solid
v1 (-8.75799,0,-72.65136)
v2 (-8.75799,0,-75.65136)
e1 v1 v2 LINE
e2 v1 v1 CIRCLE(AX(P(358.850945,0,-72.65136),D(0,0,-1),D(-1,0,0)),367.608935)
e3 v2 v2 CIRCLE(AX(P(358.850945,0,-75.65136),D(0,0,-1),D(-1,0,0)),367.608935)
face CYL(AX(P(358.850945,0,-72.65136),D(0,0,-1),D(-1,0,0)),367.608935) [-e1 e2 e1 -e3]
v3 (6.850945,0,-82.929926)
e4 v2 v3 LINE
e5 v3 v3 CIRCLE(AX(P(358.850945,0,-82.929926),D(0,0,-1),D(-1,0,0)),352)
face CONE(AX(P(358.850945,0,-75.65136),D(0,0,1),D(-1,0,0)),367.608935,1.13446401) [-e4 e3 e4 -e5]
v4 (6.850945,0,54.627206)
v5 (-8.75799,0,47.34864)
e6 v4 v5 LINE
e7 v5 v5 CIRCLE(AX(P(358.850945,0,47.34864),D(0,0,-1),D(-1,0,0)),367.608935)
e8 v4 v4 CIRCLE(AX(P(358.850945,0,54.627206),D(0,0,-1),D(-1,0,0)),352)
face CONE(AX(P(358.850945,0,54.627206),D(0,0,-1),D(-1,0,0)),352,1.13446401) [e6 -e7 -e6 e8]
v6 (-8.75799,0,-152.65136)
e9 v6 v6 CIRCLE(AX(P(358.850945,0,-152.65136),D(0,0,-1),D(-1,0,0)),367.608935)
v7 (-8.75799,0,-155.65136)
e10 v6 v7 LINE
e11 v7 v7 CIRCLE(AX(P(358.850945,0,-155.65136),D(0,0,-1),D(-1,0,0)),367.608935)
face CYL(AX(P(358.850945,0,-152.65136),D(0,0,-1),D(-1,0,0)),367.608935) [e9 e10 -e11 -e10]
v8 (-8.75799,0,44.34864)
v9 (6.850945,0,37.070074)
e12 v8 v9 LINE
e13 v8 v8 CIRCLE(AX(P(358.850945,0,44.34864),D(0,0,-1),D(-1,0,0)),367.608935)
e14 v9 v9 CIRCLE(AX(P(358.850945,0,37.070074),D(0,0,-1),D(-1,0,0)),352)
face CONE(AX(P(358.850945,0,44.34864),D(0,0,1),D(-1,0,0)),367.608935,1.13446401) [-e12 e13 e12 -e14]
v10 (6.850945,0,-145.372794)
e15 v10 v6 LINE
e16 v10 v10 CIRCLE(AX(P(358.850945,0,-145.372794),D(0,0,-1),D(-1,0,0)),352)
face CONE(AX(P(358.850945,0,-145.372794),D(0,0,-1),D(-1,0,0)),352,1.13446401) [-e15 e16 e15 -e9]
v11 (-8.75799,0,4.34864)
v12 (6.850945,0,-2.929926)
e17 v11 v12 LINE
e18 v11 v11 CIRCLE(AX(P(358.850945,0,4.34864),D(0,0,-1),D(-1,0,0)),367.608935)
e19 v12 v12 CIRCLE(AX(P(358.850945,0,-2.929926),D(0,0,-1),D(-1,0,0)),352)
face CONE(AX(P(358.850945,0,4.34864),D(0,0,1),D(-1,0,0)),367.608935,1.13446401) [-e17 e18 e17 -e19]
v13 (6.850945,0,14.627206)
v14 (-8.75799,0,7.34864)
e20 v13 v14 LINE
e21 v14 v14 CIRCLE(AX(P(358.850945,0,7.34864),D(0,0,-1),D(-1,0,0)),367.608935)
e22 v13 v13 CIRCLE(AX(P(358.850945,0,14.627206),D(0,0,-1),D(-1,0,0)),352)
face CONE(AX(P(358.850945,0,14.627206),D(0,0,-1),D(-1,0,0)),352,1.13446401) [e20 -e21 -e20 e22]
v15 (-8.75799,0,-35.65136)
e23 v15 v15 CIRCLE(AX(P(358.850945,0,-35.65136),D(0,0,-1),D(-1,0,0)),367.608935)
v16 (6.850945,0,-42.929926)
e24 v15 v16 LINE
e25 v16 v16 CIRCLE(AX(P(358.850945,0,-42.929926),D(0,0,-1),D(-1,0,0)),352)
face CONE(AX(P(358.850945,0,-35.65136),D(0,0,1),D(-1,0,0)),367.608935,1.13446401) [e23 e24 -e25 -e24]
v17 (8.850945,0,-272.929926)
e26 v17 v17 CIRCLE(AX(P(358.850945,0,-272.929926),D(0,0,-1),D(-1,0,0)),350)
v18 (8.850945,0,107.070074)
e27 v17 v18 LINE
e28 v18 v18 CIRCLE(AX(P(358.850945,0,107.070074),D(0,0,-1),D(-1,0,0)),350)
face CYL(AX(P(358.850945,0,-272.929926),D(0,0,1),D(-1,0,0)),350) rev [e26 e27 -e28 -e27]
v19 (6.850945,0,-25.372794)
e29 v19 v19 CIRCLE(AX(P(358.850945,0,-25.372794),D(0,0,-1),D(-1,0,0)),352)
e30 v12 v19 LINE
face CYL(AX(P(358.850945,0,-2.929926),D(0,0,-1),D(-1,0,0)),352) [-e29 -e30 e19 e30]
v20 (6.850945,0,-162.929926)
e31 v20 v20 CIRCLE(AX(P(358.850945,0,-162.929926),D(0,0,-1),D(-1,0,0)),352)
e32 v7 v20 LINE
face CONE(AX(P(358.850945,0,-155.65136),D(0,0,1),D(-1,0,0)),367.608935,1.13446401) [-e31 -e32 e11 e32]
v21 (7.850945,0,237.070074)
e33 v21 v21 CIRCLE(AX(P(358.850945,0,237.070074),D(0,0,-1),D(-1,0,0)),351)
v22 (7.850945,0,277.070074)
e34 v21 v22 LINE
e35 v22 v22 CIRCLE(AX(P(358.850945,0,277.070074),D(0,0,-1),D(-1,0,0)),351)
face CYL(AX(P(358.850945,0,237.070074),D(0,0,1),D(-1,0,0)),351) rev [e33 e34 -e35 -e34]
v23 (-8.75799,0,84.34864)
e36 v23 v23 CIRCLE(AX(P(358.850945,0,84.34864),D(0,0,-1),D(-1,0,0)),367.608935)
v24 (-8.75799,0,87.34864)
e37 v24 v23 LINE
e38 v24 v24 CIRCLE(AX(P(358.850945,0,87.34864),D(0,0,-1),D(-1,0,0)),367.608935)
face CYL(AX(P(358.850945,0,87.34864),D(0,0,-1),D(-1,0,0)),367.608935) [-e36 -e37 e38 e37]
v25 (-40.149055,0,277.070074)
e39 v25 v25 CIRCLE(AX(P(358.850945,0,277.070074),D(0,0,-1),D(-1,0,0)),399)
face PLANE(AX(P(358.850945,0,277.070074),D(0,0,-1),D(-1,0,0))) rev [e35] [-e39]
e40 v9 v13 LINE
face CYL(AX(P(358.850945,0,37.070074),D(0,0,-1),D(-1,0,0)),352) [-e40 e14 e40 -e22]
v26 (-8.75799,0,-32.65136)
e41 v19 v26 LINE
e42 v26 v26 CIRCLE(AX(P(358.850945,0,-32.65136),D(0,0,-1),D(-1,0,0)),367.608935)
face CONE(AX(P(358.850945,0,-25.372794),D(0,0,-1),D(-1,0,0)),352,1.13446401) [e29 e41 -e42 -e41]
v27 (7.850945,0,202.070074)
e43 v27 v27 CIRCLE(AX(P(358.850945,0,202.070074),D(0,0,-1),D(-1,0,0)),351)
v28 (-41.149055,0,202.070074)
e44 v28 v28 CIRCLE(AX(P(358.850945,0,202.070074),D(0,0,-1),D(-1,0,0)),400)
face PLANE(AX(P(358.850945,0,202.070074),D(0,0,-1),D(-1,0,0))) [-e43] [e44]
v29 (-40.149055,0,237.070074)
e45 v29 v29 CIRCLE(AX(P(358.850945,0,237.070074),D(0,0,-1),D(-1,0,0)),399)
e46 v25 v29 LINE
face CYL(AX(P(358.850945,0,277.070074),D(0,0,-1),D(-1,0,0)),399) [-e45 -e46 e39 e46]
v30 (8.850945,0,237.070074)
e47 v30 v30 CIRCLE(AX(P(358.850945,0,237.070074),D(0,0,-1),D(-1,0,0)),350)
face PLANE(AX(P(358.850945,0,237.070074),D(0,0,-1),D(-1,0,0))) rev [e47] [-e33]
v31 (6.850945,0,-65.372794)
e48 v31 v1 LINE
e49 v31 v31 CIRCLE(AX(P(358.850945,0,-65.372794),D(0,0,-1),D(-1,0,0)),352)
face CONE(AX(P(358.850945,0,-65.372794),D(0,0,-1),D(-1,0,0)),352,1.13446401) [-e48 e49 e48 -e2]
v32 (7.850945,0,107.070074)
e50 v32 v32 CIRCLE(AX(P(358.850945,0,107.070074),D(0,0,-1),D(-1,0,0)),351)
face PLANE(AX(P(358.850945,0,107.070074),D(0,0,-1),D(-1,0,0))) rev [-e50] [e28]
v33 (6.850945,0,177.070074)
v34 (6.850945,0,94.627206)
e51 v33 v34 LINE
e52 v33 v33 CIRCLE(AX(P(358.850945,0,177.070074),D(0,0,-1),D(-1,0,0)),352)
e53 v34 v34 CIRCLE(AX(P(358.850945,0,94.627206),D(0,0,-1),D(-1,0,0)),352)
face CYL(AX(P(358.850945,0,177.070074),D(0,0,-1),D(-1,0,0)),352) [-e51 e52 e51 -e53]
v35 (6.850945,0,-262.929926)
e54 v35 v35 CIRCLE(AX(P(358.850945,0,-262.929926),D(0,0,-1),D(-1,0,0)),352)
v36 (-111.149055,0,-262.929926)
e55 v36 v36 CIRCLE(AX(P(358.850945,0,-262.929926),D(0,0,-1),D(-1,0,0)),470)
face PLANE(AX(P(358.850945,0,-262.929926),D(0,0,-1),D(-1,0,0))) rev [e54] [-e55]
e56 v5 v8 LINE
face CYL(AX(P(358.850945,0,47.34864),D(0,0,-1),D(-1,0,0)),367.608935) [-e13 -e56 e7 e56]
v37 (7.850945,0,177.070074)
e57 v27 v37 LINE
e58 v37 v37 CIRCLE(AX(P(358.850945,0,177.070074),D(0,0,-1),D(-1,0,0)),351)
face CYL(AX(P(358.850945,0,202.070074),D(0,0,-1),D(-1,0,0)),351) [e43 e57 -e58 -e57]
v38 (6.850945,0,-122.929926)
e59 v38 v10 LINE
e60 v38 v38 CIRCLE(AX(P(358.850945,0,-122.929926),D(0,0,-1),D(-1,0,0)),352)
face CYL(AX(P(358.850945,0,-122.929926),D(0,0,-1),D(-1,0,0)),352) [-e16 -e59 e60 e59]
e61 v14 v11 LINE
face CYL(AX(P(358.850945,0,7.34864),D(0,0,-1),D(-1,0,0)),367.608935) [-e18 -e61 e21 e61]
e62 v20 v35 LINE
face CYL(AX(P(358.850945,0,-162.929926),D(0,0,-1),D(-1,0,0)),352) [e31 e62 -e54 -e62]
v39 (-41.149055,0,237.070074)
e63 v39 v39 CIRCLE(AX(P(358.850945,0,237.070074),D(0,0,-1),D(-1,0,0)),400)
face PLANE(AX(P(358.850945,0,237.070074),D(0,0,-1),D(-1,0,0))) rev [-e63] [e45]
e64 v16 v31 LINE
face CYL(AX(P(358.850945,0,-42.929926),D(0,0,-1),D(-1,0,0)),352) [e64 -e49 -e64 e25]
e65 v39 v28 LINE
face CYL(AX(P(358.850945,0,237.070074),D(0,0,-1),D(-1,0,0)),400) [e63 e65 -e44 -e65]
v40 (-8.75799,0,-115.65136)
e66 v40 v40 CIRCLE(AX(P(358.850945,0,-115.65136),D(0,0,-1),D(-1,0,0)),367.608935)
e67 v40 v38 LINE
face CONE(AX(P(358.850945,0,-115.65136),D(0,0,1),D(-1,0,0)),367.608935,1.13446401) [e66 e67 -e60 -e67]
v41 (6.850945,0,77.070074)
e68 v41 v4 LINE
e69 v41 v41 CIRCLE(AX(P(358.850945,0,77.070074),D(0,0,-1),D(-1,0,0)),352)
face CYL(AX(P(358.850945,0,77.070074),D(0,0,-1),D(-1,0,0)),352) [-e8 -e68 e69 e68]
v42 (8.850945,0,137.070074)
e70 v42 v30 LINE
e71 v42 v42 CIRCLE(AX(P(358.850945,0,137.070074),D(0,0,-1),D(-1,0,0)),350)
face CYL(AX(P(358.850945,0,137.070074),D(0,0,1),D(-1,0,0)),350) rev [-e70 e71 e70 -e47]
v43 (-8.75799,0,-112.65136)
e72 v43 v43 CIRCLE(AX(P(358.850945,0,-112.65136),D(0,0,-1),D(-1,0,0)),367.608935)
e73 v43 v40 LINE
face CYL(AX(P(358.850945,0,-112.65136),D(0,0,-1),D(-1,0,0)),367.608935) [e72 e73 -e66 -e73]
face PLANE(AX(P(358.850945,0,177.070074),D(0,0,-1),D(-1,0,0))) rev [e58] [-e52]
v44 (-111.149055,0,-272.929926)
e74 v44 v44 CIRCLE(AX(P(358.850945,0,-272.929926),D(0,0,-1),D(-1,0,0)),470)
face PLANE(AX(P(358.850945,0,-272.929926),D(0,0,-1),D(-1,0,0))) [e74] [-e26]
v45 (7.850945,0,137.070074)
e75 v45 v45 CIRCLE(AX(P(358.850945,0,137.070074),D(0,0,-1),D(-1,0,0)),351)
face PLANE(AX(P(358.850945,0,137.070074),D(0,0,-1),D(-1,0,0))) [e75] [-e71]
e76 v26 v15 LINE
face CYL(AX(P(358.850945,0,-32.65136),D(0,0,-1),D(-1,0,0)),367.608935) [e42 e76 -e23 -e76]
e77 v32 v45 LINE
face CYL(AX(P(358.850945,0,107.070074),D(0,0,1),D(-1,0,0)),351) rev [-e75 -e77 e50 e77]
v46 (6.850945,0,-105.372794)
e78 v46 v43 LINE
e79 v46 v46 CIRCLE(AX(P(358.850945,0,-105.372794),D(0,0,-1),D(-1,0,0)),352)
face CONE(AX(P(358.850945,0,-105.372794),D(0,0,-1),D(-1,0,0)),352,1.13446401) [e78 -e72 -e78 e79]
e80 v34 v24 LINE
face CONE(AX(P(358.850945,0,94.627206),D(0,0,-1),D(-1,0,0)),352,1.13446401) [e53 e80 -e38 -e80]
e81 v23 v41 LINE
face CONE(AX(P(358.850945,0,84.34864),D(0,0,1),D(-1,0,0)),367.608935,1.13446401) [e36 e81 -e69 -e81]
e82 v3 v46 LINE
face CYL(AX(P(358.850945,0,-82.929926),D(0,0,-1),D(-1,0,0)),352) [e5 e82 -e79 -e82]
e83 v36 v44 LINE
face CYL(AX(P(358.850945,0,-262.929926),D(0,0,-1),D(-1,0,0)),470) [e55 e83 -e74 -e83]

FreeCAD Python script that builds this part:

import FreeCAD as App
import Part
import Sketcher

V = App.Vector
Q = App.Units.Quantity


def add_polygon(sketch, points):
    """Adds a closed chain of lines whose ends are joined by coincident constraints."""
    first, n = sketch.GeometryCount, len(points)
    for a, b in zip(points, points[1:] + points[:1]):
        sketch.addGeometry(Part.LineSegment(App.Vector(*a, 0), App.Vector(*b, 0)), False)
    for i in range(n):
        sketch.addConstraint(Sketcher.Constraint("Coincident", first + i, 2, first + (i + 1) % n, 1))

doc = App.newDocument("Part")
body = doc.addObject("PartDesign::Body", "Body")

# Sketch on XZ plane
sketch1 = body.newObject("Sketcher::SketchObject", "Sketch")
sketch1.AttachmentSupport = (doc.getObject("XZ_Plane"), [""])
sketch1.MapMode = "FlatFace"
add_polygon(sketch1, [(-111.149055, -272.929926), (8.850945, -272.929926), (8.850945, 107.070074), (7.850945, 107.070074), (7.850945, 137.070074), (8.850945, 137.070074), (8.850945, 237.070074), (7.850945, 237.070074), (7.850945, 277.070074), (-40.149055, 277.070074), (-40.149055, 237.070074), (-41.149055, 237.070074), (-41.149055, 202.070074), (7.850945, 202.070074), (7.850945, 177.070074), (6.850945, 177.070074), (6.850945, 94.627206), (-8.75799, 87.34864), (-8.75799, 84.34864), (6.850945, 77.070074), (6.850945, 54.627206), (-8.75799, 47.34864), (-8.75799, 44.34864), (6.850945, 37.070074), (6.850945, 14.627206), (-8.75799, 7.34864), (-8.75799, 4.34864), (6.850945, -2.929926), (6.850945, -25.372794), (-8.75799, -32.65136), (-8.75799, -35.65136), (6.850945, -42.929926), (6.850945, -65.372794), (-8.75799, -72.65136), (-8.75799, -75.65136), (6.850945, -82.929926), (6.850945, -105.372794), (-8.75799, -112.65136), (-8.75799, -115.65136), (6.850945, -122.929926), (6.850945, -145.372794), (-8.75799, -152.65136), (-8.75799, -155.65136), (6.850945, -162.929926), (6.850945, -262.929926), (-111.149055, -262.929926)])  # lines 0-45
sketch1.addGeometry(Part.LineSegment(V(358.850945, 277.070074, 0), V(358.850945, -272.929926, 0)), True)  # axis
sketch1.addConstraint([
    Sketcher.Constraint("Horizontal", 0),
    Sketcher.Constraint("Vertical", 1),
    Sketcher.Constraint("Horizontal", 2),
    Sketcher.Constraint("Vertical", 3),
    Sketcher.Constraint("Horizontal", 4),
    Sketcher.Constraint("Vertical", 5),
    Sketcher.Constraint("Horizontal", 6),
    Sketcher.Constraint("Vertical", 7),
    Sketcher.Constraint("Horizontal", 8),
    Sketcher.Constraint("Vertical", 9),
    Sketcher.Constraint("Horizontal", 10),
    Sketcher.Constraint("Vertical", 11),
    Sketcher.Constraint("Horizontal", 12),
    Sketcher.Constraint("Vertical", 13),
    Sketcher.Constraint("Horizontal", 14),
    Sketcher.Constraint("Vertical", 15),
    Sketcher.Constraint("Vertical", 17),
    Sketcher.Constraint("Vertical", 19),
    Sketcher.Constraint("Vertical", 21),
    Sketcher.Constraint("Vertical", 23),
    Sketcher.Constraint("Vertical", 25),
    Sketcher.Constraint("Vertical", 27),
    Sketcher.Constraint("Vertical", 29),
    Sketcher.Constraint("Vertical", 31),
    Sketcher.Constraint("Vertical", 33),
    Sketcher.Constraint("Vertical", 35),
    Sketcher.Constraint("Vertical", 37),
    Sketcher.Constraint("Vertical", 39),
    Sketcher.Constraint("Vertical", 41),
    Sketcher.Constraint("Vertical", 43),
    Sketcher.Constraint("Horizontal", 44),
    Sketcher.Constraint("Vertical", 45),
    Sketcher.Constraint("Vertical", 46),
    Sketcher.Constraint("Parallel", 16, 20),
    Sketcher.Constraint("Parallel", 18, 22),
    Sketcher.Constraint("Parallel", 20, 24),
    Sketcher.Constraint("Parallel", 22, 26),
    Sketcher.Constraint("Parallel", 24, 28),
    Sketcher.Constraint("Parallel", 26, 30),
    Sketcher.Constraint("Parallel", 28, 32),
    Sketcher.Constraint("Parallel", 30, 34),
    Sketcher.Constraint("Parallel", 32, 36),
    Sketcher.Constraint("Parallel", 34, 38),
    Sketcher.Constraint("Parallel", 36, 40),
    Sketcher.Constraint("Parallel", 38, 42),
    Sketcher.Constraint("Horizontal", 6, 2, 9, 2),
    Sketcher.Constraint("Horizontal", 8, 2, 46, 1),
    Sketcher.Constraint("Horizontal", 45, 2, 46, 2),
    Sketcher.Constraint("Vertical", 1, 2, 4, 2),
    Sketcher.Constraint("Vertical", 3, 2, 6, 2),
    Sketcher.Constraint("Vertical", 7, 2, 12, 2),
    Sketcher.Constraint("Vertical", 15, 2, 18, 2),
    Sketcher.Constraint("Vertical", 17, 2, 20, 2),
    Sketcher.Constraint("Vertical", 19, 2, 22, 2),
    Sketcher.Constraint("Vertical", 21, 2, 24, 2),
    Sketcher.Constraint("Vertical", 23, 2, 26, 2),
    Sketcher.Constraint("Vertical", 25, 2, 28, 2),
    Sketcher.Constraint("Vertical", 27, 2, 30, 2),
    Sketcher.Constraint("Vertical", 29, 2, 32, 2),
    Sketcher.Constraint("Vertical", 31, 2, 34, 2),
    Sketcher.Constraint("Vertical", 33, 2, 36, 2),
    Sketcher.Constraint("Vertical", 35, 2, 38, 2),
    Sketcher.Constraint("Vertical", 37, 2, 40, 2),
    Sketcher.Constraint("Vertical", 39, 2, 42, 2),
    Sketcher.Constraint("Equal", 6, 10),
    Sketcher.Constraint("Equal", 10, 14),
    Sketcher.Constraint("Equal", 17, 21),
    Sketcher.Constraint("Equal", 19, 23),
    Sketcher.Constraint("Equal", 21, 25),
    Sketcher.Constraint("Equal", 23, 27),
    Sketcher.Constraint("Equal", 25, 29),
    Sketcher.Constraint("Equal", 27, 31),
    Sketcher.Constraint("Equal", 29, 33),
    Sketcher.Constraint("Equal", 31, 35),
    Sketcher.Constraint("Equal", 33, 37),
    Sketcher.Constraint("Equal", 35, 39),
    Sketcher.Constraint("Equal", 37, 41),
    Sketcher.Constraint("Equal", 5, 43),
    Sketcher.Constraint("Equal", 16, 18),
    Sketcher.Constraint("DistanceX", 0, 1, 0, 2, 120.0),
    Sketcher.Constraint("DistanceX", 2, 2, 2, 1, 1.0),
    Sketcher.Constraint("DistanceX", 8, 2, 8, 1, 48.0),
    Sketcher.Constraint("DistanceY", 1, 1, 1, 2, 380.0),
    Sketcher.Constraint("DistanceY", 3, 1, 3, 2, 30.0),
    Sketcher.Constraint("DistanceY", 5, 1, 5, 2, 100.0),
    Sketcher.Constraint("DistanceY", 7, 1, 7, 2, 40.0),
    Sketcher.Constraint("DistanceY", 11, 2, 11, 1, 35.0),
    Sketcher.Constraint("DistanceY", 13, 2, 13, 1, 25.0),
    Sketcher.Constraint("DistanceY", 17, 2, 17, 1, 3.0),
    Sketcher.Constraint("DistanceY", 45, 2, 45, 1, 10.0),
    Sketcher.Constraint("Angle", 16, Q("-155 deg")),
    Sketcher.Constraint("DistanceY", 18, 2, 2, 2, 30.0),
    Sketcher.Constraint("DistanceX", 7, 2, 46, 1, 351.0),
    Sketcher.Constraint("DistanceY", 15, 2, 15, 1, 82.442868),
    Sketcher.Constraint("DistanceX", 16, 2, -1, 1, 8.75799),
    Sketcher.Constraint("DistanceY", -1, 1, 16, 2, 87.34864),
])
revolution = body.newObject("PartDesign::Revolution", "Revolution")
revolution.Profile = sketch1
revolution.ReferenceAxis = (sketch1, ["Axis0"])
revolution.Angle = 360

doc.recompute()
